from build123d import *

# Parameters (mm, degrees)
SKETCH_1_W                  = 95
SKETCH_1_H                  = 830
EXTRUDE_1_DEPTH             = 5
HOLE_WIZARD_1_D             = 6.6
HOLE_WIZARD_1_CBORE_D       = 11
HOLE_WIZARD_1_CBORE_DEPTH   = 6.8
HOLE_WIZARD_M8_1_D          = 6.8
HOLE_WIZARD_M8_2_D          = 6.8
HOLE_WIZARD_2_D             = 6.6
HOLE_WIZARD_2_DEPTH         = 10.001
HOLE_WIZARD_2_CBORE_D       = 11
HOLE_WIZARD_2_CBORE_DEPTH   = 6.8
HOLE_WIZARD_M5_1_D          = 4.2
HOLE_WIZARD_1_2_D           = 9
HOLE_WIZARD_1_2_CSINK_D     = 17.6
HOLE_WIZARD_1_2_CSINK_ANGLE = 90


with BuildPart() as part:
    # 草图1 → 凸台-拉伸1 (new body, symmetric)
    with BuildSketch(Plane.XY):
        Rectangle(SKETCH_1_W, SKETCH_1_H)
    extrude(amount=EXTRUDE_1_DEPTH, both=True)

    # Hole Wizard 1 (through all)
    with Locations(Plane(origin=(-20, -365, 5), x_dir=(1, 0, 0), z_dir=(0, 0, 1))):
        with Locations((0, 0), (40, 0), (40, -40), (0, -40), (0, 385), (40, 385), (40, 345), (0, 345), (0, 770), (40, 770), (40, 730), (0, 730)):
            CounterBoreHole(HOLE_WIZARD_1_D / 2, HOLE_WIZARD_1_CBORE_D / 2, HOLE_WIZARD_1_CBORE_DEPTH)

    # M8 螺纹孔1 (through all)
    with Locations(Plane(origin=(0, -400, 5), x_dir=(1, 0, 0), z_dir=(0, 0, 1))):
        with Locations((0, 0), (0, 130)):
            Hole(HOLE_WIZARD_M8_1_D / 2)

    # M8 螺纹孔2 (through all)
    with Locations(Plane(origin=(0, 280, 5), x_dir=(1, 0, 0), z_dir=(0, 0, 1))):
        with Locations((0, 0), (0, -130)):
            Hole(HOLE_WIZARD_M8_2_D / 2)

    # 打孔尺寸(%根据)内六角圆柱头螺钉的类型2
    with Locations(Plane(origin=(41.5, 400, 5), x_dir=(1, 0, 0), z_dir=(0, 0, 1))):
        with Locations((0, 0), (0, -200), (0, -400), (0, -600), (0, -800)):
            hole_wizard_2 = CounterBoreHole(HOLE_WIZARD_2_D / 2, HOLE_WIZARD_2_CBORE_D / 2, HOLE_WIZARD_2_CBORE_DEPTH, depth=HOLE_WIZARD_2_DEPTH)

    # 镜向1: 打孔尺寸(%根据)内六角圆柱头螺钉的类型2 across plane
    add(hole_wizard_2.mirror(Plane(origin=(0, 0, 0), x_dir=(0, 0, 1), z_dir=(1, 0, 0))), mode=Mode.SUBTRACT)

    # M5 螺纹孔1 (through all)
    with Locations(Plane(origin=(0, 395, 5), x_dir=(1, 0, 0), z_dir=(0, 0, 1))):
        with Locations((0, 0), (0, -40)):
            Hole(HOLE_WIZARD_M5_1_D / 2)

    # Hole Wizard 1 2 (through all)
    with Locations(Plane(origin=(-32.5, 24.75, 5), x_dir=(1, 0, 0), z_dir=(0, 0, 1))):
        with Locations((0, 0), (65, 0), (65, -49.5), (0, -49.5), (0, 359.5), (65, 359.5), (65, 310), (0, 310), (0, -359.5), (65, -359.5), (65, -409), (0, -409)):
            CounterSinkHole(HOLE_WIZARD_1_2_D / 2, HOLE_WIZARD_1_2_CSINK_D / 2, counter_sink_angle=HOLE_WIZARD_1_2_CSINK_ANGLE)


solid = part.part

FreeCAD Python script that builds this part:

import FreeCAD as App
import Part
import Sketcher

V = App.Vector
Q = App.Units.Quantity


def add_polygon(sketch, points):
    """Adds a closed chain of lines whose ends are joined by coincident constraints."""
    first, n = sketch.GeometryCount, len(points)
    for a, b in zip(points, points[1:] + points[:1]):
        sketch.addGeometry(Part.LineSegment(App.Vector(*a, 0), App.Vector(*b, 0)), False)
    for i in range(n):
        sketch.addConstraint(Sketcher.Constraint("Coincident", first + i, 2, first + (i + 1) % n, 1))

doc = App.newDocument("Part")
body = doc.addObject("PartDesign::Body", "Body")

# Sketch on XY plane
sketch1 = body.newObject("Sketcher::SketchObject", "Sketch")
sketch1.AttachmentSupport = (doc.getObject("XY_Plane"), [""])
sketch1.MapMode = "FlatFace"
add_polygon(sketch1, [(-48, 415), (-48, -415), (48, -415), (48, 415)])  # lines 0-3
sketch1.addConstraint(Sketcher.Constraint("Vertical", 0))
sketch1.addConstraint(Sketcher.Constraint("Horizontal", 1))
sketch1.addConstraint(Sketcher.Constraint("Vertical", 2))
sketch1.addConstraint(Sketcher.Constraint("Horizontal", 3))
sketch1.addConstraint(Sketcher.Constraint("Symmetric", 0, 2, 2, 2, -1, 1))
sketch1.addConstraint(Sketcher.Constraint("DistanceX", 1, 1, 1, 2, Q("95 mm")))
sketch1.addConstraint(Sketcher.Constraint("DistanceY", 0, 2, 0, 1, Q("830 mm")))
pad1 = body.newObject("PartDesign::Pad", "Pad")
pad1.Profile = sketch1
pad1.Length = 10
pad1.Midplane = True

# Sketch on XY plane
sketch2 = body.newObject("Sketcher::SketchObject", "Sketch001")
sketch2.AttachmentSupport = (doc.getObject("XY_Plane"), [""])
sketch2.MapMode = "FlatFace"
sketch2.AttachmentOffset = App.Placement(V(0, 0, 5), App.Rotation())
sketch2.addGeometry(Part.Circle(V(-20, -365, 0), V(0, 0, 1), 3.3), False)
sketch2.addGeometry(Part.Circle(V(20, -365, 0), V(0, 0, 1), 3.3), False)
sketch2.addGeometry(Part.Circle(V(20, -405, 0), V(0, 0, 1), 3.3), False)
sketch2.addGeometry(Part.Circle(V(-20, -405, 0), V(0, 0, 1), 3.3), False)
sketch2.addGeometry(Part.Circle(V(-20, 20, 0), V(0, 0, 1), 3.3), False)
sketch2.addGeometry(Part.Circle(V(20, 20, 0), V(0, 0, 1), 3.3), False)
sketch2.addGeometry(Part.Circle(V(20, -20, 0), V(0, 0, 1), 3.3), False)
sketch2.addGeometry(Part.Circle(V(-20, -20, 0), V(0, 0, 1), 3.3), False)
sketch2.addGeometry(Part.Circle(V(-20, 405, 0), V(0, 0, 1), 3.3), False)
sketch2.addGeometry(Part.Circle(V(20, 405, 0), V(0, 0, 1), 3.3), False)
sketch2.addGeometry(Part.Circle(V(20, 365, 0), V(0, 0, 1), 3.3), False)
sketch2.addGeometry(Part.Circle(V(-20, 365, 0), V(0, 0, 1), 3.3), False)
sketch2.addConstraint(Sketcher.Constraint("Equal", 0, 1))
sketch2.addConstraint(Sketcher.Constraint("Equal", 1, 2))
sketch2.addConstraint(Sketcher.Constraint("Equal", 2, 3))
sketch2.addConstraint(Sketcher.Constraint("Equal", 3, 4))
sketch2.addConstraint(Sketcher.Constraint("Equal", 4, 5))
sketch2.addConstraint(Sketcher.Constraint("Equal", 5, 6))
sketch2.addConstraint(Sketcher.Constraint("Equal", 6, 7))
sketch2.addConstraint(Sketcher.Constraint("Equal", 7, 8))
sketch2.addConstraint(Sketcher.Constraint("Equal", 8, 9))
sketch2.addConstraint(Sketcher.Constraint("Equal", 9, 10))
sketch2.addConstraint(Sketcher.Constraint("Equal", 10, 11))
sketch2.addConstraint(Sketcher.Constraint("Symmetric", 4, 3, 6, 3, -1, 1))
sketch2.addConstraint(Sketcher.Constraint("Symmetric", 5, 3, 7, 3, -1, 1))
sketch2.addConstraint(Sketcher.Constraint("Symmetric", 2, 3, 8, 3, -1, 1))
sketch2.addConstraint(Sketcher.Constraint("Symmetric", 3, 3, 9, 3, -1, 1))
sketch2.addConstraint(Sketcher.Constraint("Symmetric", 0, 3, 10, 3, -1, 1))
sketch2.addConstraint(Sketcher.Constraint("Symmetric", 1, 3, 11, 3, -1, 1))
sketch2.addConstraint(Sketcher.Constraint("Symmetric", 0, 3, 1, 3, -2))
sketch2.addConstraint(Sketcher.Constraint("Symmetric", 2, 3, 3, 3, -2))
sketch2.addConstraint(Sketcher.Constraint("Symmetric", 4, 3, 5, 3, -2))
sketch2.addConstraint(Sketcher.Constraint("Vertical", 1, 3, 2, 3))
sketch2.addConstraint(Sketcher.Constraint("Vertical", 3, 3, 4, 3))
sketch2.addConstraint(Sketcher.Constraint("Diameter", 0, Q("6.6 mm")))
sketch2.addConstraint(Sketcher.Constraint("DistanceX", 0, 3, -1, 1, Q("20 mm")))
sketch2.addConstraint(Sketcher.Constraint("DistanceY", 0, 3, -1, 1, Q("365 mm")))
sketch2.addConstraint(Sketcher.Constraint("DistanceY", 2, 3, -1, 1, Q("405 mm")))
sketch2.addConstraint(Sketcher.Constraint("DistanceY", -1, 1, 4, 3, Q("20 mm")))
doc.recompute()
hole = body.newObject("PartDesign::Hole", "Hole")
hole.Profile = sketch2
hole.ThreadType = "None"
hole.Diameter = 6.6
hole.DepthType = "ThroughAll"
hole.HoleCutType = "Counterbore"
hole.HoleCutDiameter = 11
hole.HoleCutDepth = 6.8

# Sketch on XY plane
sketch3 = body.newObject("Sketcher::SketchObject", "Sketch002")
sketch3.AttachmentSupport = (doc.getObject("XY_Plane"), [""])
sketch3.MapMode = "FlatFace"
sketch3.AttachmentOffset = App.Placement(V(0, 0, 5), App.Rotation())
sketch3.addGeometry(Part.Circle(V(0, -400, 0), V(0, 0, 1), 3.4), False)
sketch3.addGeometry(Part.Circle(V(0, -270, 0), V(0, 0, 1), 3.4), False)
sketch3.addConstraint(Sketcher.Constraint("Equal", 0, 1))
sketch3.addConstraint(Sketcher.Constraint("PointOnObject", 0, 3, -2))
sketch3.addConstraint(Sketcher.Constraint("PointOnObject", 1, 3, -2))
sketch3.addConstraint(Sketcher.Constraint("Diameter", 0, Q("6.8 mm")))
sketch3.addConstraint(Sketcher.Constraint("DistanceY", 0, 3, -1, 1, Q("400 mm")))
sketch3.addConstraint(Sketcher.Constraint("DistanceY", 1, 3, -1, 1, Q("270 mm")))
doc.recompute()
hole2 = body.newObject("PartDesign::Hole", "Hole001")
hole2.Profile = sketch3
hole2.ThreadType = "None"
hole2.Diameter = 6.8
hole2.DepthType = "ThroughAll"

# Sketch on XY plane
sketch4 = body.newObject("Sketcher::SketchObject", "Sketch003")
sketch4.AttachmentSupport = (doc.getObject("XY_Plane"), [""])
sketch4.MapMode = "FlatFace"
sketch4.AttachmentOffset = App.Placement(V(0, 0, 5), App.Rotation())
sketch4.addGeometry(Part.Circle(V(0, 280, 0), V(0, 0, 1), 3.4), False)
sketch4.addGeometry(Part.Circle(V(0, 150, 0), V(0, 0, 1), 3.4), False)
sketch4.addConstraint(Sketcher.Constraint("Equal", 0, 1))
sketch4.addConstraint(Sketcher.Constraint("PointOnObject", 0, 3, -2))
sketch4.addConstraint(Sketcher.Constraint("PointOnObject", 1, 3, -2))
sketch4.addConstraint(Sketcher.Constraint("Diameter", 0, Q("6.8 mm")))
sketch4.addConstraint(Sketcher.Constraint("DistanceY", -1, 1, 0, 3, Q("280 mm")))
sketch4.addConstraint(Sketcher.Constraint("DistanceY", -1, 1, 1, 3, Q("150 mm")))
doc.recompute()
hole3 = body.newObject("PartDesign::Hole", "Hole002")
hole3.Profile = sketch4
hole3.ThreadType = "None"
hole3.Diameter = 6.8
hole3.DepthType = "ThroughAll"

# Sketch on XY plane
sketch5 = body.newObject("Sketcher::SketchObject", "Sketch004")
sketch5.AttachmentSupport = (doc.getObject("XY_Plane"), [""])
sketch5.MapMode = "FlatFace"
sketch5.AttachmentOffset = App.Placement(V(0, 0, 5), App.Rotation())
sketch5.addGeometry(Part.Circle(V(41.5, 400, 0), V(0, 0, 1), 3.3), False)
sketch5.addGeometry(Part.Circle(V(41.5, 200, 0), V(0, 0, 1), 3.3), False)
sketch5.addGeometry(Part.Circle(V(41.5, 0, 0), V(0, 0, 1), 3.3), False)
sketch5.addGeometry(Part.Circle(V(41.5, -200, 0), V(0, 0, 1), 3.3), False)
sketch5.addGeometry(Part.Circle(V(41.5, -400, 0), V(0, 0, 1), 3.3), False)
sketch5.addConstraint(Sketcher.Constraint("Equal", 0, 1))
sketch5.addConstraint(Sketcher.Constraint("Equal", 1, 2))
sketch5.addConstraint(Sketcher.Constraint("Equal", 2, 3))
sketch5.addConstraint(Sketcher.Constraint("Equal", 3, 4))
sketch5.addConstraint(Sketcher.Constraint("Symmetric", 1, 3, 3, 3, -1))
sketch5.addConstraint(Sketcher.Constraint("Symmetric", 0, 3, 4, 3, -1))
sketch5.addConstraint(Sketcher.Constraint("PointOnObject", 2, 3, -1))
sketch5.addConstraint(Sketcher.Constraint("Vertical", 0, 3, 1, 3))
sketch5.addConstraint(Sketcher.Constraint("Vertical", 1, 3, 2, 3))
sketch5.addConstraint(Sketcher.Constraint("Diameter", 0, Q("6.6 mm")))
sketch5.addConstraint(Sketcher.Constraint("DistanceY", -1, 1, 0, 3, Q("400 mm")))
sketch5.addConstraint(Sketcher.Constraint("DistanceY", -1, 1, 1, 3, Q("200 mm")))
sketch5.addConstraint(Sketcher.Constraint("DistanceX", -1, 1, 0, 3, Q("41.5 mm")))
doc.recompute()
hole4 = body.newObject("PartDesign::Hole", "Hole003")
hole4.Profile = sketch5
hole4.ThreadType = "None"
hole4.Diameter = 6.6
hole4.DepthType = "Dimension"
hole4.Depth = 10.001
hole4.DrillPoint = "Flat"
hole4.HoleCutType = "Counterbore"
hole4.HoleCutDiameter = 11
hole4.HoleCutDepth = 6.8
doc.recompute()

mirrored = body.newObject("PartDesign::Mirrored", "Mirrored")
mirrored.Originals = [hole4]
mirrored.MirrorPlane = (doc.getObject("YZ_Plane"), [""])
body.Tip = mirrored

# Sketch on XY plane
sketch6 = body.newObject("Sketcher::SketchObject", "Sketch005")
sketch6.AttachmentSupport = (doc.getObject("XY_Plane"), [""])
sketch6.MapMode = "FlatFace"
sketch6.AttachmentOffset = App.Placement(V(0, 0, 5), App.Rotation())
sketch6.addGeometry(Part.Circle(V(0, 395, 0), V(0, 0, 1), 2.1), False)
sketch6.addGeometry(Part.Circle(V(0, 355, 0), V(0, 0, 1), 2.1), False)
sketch6.addConstraint(Sketcher.Constraint("Equal", 0, 1))
sketch6.addConstraint(Sketcher.Constraint("PointOnObject", 0, 3, -2))
sketch6.addConstraint(Sketcher.Constraint("PointOnObject", 1, 3, -2))
sketch6.addConstraint(Sketcher.Constraint("Diameter", 0, Q("4.2 mm")))
sketch6.addConstraint(Sketcher.Constraint("DistanceY", -1, 1, 0, 3, Q("395 mm")))
sketch6.addConstraint(Sketcher.Constraint("DistanceY", -1, 1, 1, 3, Q("355 mm")))
doc.recompute()
hole5 = body.newObject("PartDesign::Hole", "Hole004")
hole5.Profile = sketch6
hole5.ThreadType = "None"
hole5.Diameter = 4.2
hole5.DepthType = "ThroughAll"

# Sketch on XY plane
sketch7 = body.newObject("Sketcher::SketchObject", "Sketch006")
sketch7.AttachmentSupport = (doc.getObject("XY_Plane"), [""])
sketch7.MapMode = "FlatFace"
sketch7.AttachmentOffset = App.Placement(V(0, 0, 5), App.Rotation())
sketch7.addGeometry(Part.Circle(V(-32.5, 24.8, 0), V(0, 0, 1), 4.5), False)
sketch7.addGeometry(Part.Circle(V(32.5, 24.8, 0), V(0, 0, 1), 4.5), False)
sketch7.addGeometry(Part.Circle(V(32.5, -24.8, 0), V(0, 0, 1), 4.5), False)
sketch7.addGeometry(Part.Circle(V(-32.5, -24.8, 0), V(0, 0, 1), 4.5), False)
sketch7.addGeometry(Part.Circle(V(-32.5, 384.2, 0), V(0, 0, 1), 4.5), False)
sketch7.addGeometry(Part.Circle(V(32.5, 384.2, 0), V(0, 0, 1), 4.5), False)
sketch7.addGeometry(Part.Circle(V(32.5, 334.8, 0), V(0, 0, 1), 4.5), False)
sketch7.addGeometry(Part.Circle(V(-32.5, 334.8, 0), V(0, 0, 1), 4.5), False)
sketch7.addGeometry(Part.Circle(V(-32.5, -334.8, 0), V(0, 0, 1), 4.5), False)
sketch7.addGeometry(Part.Circle(V(32.5, -334.8, 0), V(0, 0, 1), 4.5), False)
sketch7.addGeometry(Part.Circle(V(32.5, -384.2, 0), V(0, 0, 1), 4.5), False)
sketch7.addGeometry(Part.Circle(V(-32.5, -384.2, 0), V(0, 0, 1), 4.5), False)
sketch7.addConstraint(Sketcher.Constraint("Equal", 0, 1))
sketch7.addConstraint(Sketcher.Constraint("Equal", 1, 2))
sketch7.addConstraint(Sketcher.Constraint("Equal", 2, 3))
sketch7.addConstraint(Sketcher.Constraint("Equal", 3, 4))
sketch7.addConstraint(Sketcher.Constraint("Equal", 4, 5))
sketch7.addConstraint(Sketcher.Constraint("Equal", 5, 6))
sketch7.addConstraint(Sketcher.Constraint("Equal", 6, 7))
sketch7.addConstraint(Sketcher.Constraint("Equal", 7, 8))
sketch7.addConstraint(Sketcher.Constraint("Equal", 8, 9))
sketch7.addConstraint(Sketcher.Constraint("Equal", 9, 10))
sketch7.addConstraint(Sketcher.Constraint("Equal", 10, 11))
sketch7.addConstraint(Sketcher.Constraint("Symmetric", 0, 3, 2, 3, -1, 1))
sketch7.addConstraint(Sketcher.Constraint("Symmetric", 1, 3, 3, 3, -1, 1))
sketch7.addConstraint(Sketcher.Constraint("Symmetric", 6, 3, 8, 3, -1, 1))
sketch7.addConstraint(Sketcher.Constraint("Symmetric", 7, 3, 9, 3, -1, 1))
sketch7.addConstraint(Sketcher.Constraint("Symmetric", 4, 3, 10, 3, -1, 1))
sketch7.addConstraint(Sketcher.Constraint("Symmetric", 5, 3, 11, 3, -1, 1))
sketch7.addConstraint(Sketcher.Constraint("Symmetric", 0, 3, 1, 3, -2))
sketch7.addConstraint(Sketcher.Constraint("Symmetric", 4, 3, 5, 3, -2))
sketch7.addConstraint(Sketcher.Constraint("Symmetric", 6, 3, 7, 3, -2))
sketch7.addConstraint(Sketcher.Constraint("Vertical", 3, 3, 4, 3))
sketch7.addConstraint(Sketcher.Constraint("Vertical", 5, 3, 6, 3))
sketch7.addConstraint(Sketcher.Constraint("Diameter", 0, Q("9 mm")))
sketch7.addConstraint(Sketcher.Constraint("DistanceX", 0, 3, 1, 3, Q("65 mm")))
sketch7.addConstraint(Sketcher.Constraint("DistanceY", 3, 3, 4, 3, Q("409 mm")))
sketch7.addConstraint(Sketcher.Constraint("DistanceY", 1, 3, 6, 3, Q("310 mm")))
sketch7.addConstraint(Sketcher.Constraint("DistanceY", 2, 3, 1, 3, Q("49.5 mm")))
doc.recompute()
hole6 = body.newObject("PartDesign::Hole", "Hole005")
hole6.Profile = sketch7
hole6.ThreadType = "None"
hole6.Diameter = 9
hole6.DepthType = "ThroughAll"
hole6.HoleCutType = "Countersink"
hole6.HoleCutDiameter = 17.6
hole6.HoleCutCountersinkAngle = 90

doc.recompute()
